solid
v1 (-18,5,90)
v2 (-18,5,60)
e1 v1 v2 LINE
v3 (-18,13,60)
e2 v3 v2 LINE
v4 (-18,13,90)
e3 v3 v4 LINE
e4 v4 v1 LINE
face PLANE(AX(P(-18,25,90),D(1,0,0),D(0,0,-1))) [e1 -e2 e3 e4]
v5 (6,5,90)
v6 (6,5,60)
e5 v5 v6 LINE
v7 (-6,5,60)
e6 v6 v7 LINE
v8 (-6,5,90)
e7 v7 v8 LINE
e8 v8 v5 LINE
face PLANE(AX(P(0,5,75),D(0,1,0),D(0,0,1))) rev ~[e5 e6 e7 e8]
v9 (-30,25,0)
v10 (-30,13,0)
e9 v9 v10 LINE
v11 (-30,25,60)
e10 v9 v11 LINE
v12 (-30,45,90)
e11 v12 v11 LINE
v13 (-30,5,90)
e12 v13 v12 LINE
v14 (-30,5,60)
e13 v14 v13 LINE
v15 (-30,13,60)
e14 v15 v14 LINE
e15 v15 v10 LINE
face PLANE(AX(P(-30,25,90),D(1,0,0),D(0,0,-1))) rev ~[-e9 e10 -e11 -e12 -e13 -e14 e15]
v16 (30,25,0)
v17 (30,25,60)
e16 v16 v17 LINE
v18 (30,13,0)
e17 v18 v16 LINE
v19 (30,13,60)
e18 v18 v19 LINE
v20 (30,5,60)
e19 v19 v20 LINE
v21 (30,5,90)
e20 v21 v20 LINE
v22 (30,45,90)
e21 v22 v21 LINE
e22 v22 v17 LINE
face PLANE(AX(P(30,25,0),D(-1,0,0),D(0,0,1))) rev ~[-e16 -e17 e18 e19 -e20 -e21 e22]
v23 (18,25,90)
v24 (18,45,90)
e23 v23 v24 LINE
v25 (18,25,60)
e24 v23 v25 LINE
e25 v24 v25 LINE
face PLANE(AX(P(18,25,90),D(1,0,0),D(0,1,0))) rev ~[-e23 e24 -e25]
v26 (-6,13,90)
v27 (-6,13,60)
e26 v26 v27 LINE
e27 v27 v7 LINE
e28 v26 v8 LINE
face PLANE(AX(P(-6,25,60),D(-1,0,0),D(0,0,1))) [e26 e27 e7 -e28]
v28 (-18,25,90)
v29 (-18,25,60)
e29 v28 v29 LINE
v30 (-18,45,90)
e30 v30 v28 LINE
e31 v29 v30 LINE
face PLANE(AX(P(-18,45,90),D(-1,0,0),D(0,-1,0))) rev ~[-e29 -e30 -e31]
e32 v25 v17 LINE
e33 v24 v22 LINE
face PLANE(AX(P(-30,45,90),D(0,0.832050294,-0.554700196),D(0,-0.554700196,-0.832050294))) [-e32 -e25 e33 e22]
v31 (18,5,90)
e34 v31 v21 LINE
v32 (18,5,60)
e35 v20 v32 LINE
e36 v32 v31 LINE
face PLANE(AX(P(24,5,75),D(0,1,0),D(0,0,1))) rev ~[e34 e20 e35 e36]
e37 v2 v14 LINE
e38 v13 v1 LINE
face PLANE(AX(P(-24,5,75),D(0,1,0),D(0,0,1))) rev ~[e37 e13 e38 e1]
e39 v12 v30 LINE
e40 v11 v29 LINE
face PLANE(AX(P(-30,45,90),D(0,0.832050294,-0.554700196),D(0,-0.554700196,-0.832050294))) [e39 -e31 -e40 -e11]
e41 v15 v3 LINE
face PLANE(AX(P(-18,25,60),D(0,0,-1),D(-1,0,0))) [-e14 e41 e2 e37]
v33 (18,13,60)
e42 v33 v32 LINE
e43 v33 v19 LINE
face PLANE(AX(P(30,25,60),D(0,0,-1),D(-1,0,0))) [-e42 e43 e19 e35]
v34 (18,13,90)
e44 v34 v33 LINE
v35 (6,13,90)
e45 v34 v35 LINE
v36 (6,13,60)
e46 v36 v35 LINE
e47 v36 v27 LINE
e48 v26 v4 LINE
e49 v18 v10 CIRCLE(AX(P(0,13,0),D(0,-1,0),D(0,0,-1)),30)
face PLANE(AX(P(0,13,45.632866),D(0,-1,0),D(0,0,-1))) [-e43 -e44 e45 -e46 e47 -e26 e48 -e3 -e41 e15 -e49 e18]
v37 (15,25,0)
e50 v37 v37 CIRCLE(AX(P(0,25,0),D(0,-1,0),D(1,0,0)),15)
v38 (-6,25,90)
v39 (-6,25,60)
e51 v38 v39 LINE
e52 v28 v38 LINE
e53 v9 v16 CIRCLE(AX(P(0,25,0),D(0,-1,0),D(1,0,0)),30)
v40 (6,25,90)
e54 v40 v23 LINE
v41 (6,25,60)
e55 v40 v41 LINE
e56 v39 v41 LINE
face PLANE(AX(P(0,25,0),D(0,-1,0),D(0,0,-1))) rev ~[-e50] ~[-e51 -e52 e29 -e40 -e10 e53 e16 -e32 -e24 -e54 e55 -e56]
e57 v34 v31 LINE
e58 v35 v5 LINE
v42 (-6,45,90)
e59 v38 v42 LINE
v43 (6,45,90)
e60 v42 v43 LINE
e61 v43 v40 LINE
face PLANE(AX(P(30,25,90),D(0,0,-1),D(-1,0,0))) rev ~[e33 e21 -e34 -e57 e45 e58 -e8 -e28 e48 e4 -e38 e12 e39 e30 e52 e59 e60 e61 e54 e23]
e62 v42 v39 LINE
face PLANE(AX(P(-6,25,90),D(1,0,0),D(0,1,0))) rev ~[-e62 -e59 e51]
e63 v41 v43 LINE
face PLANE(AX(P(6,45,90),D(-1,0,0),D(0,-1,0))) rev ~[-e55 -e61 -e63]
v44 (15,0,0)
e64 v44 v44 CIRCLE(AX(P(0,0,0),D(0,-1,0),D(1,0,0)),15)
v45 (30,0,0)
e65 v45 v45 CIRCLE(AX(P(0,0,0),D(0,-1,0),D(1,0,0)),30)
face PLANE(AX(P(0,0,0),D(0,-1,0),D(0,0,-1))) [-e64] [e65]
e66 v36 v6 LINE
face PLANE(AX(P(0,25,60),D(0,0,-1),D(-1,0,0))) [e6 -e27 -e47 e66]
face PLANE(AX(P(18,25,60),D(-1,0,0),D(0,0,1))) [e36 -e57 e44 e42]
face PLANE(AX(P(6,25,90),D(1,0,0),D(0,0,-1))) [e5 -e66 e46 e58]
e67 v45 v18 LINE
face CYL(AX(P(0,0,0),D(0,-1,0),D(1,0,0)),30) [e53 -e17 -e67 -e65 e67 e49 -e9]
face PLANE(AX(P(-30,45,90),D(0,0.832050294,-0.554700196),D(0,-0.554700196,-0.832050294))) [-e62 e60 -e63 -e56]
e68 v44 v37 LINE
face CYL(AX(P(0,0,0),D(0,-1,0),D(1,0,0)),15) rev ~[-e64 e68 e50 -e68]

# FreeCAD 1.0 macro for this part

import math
import FreeCAD as App
import Part
import Sketcher

V = App.Vector


def add_polygon(sketch, points):
    """Adds a closed chain of lines whose ends are joined by coincident constraints."""
    first, n = sketch.GeometryCount, len(points)
    for a, b in zip(points, points[1:] + points[:1]):
        sketch.addGeometry(Part.LineSegment(App.Vector(*a, 0), App.Vector(*b, 0)), False)
    for i in range(n):
        sketch.addConstraint(Sketcher.Constraint("Coincident", first + i, 2, first + (i + 1) % n, 1))

doc = App.newDocument("Part")
body = doc.addObject("PartDesign::Body", "Body")

# Sketch on XZ plane
sketch1 = body.newObject("Sketcher::SketchObject", "Sketch")
sketch1.AttachmentSupport = (doc.getObject("XZ_Plane"), [""])
sketch1.MapMode = "FlatFace"
sketch1.addGeometry(Part.Circle(V(0, 0, 0), V(0, 0, 1), 30), False)
sketch1.addGeometry(Part.Circle(V(0, 0, 0), V(0, 0, 1), 15), False)
sketch1.addConstraint(Sketcher.Constraint("Coincident", 0, 3, -1, 1))
sketch1.addConstraint(Sketcher.Constraint("Coincident", 1, 3, -1, 1))
sketch1.addConstraint(Sketcher.Constraint("Diameter", 0, 60.0))
sketch1.addConstraint(Sketcher.Constraint("Diameter", 1, 30.0))
pad1 = body.newObject("PartDesign::Pad", "Pad")
pad1.Profile = sketch1
pad1.Length = 25
pad1.Reversed = True

# Sketch on XZ plane
sketch2 = body.newObject("Sketcher::SketchObject", "Sketch001")
sketch2.AttachmentSupport = (doc.getObject("XZ_Plane"), [""])
sketch2.MapMode = "FlatFace"
sketch2.AttachmentOffset = App.Placement(V(0, 0, -25), App.Rotation())
sketch2.addGeometry(Part.LineSegment(V(-30, 90, 0), V(30, 90, 0)), False)
sketch2.addGeometry(Part.LineSegment(V(30, 90, 0), V(30, 0, 0)), False)
sketch2.addGeometry(Part.ArcOfCircle(Part.Circle(V(0, 0, 0), V(0, 0, 1), 30), math.radians(0), math.radians(180)), False)
sketch2.addGeometry(Part.LineSegment(V(-30, 0, 0), V(-30, 90, 0)), False)
sketch2.addConstraint(Sketcher.Constraint("Coincident", 0, 2, 1, 1))
sketch2.addConstraint(Sketcher.Constraint("Tangent", 1, 2, 2, 1))
sketch2.addConstraint(Sketcher.Constraint("Tangent", 2, 2, 3, 1))
sketch2.addConstraint(Sketcher.Constraint("Coincident", 3, 2, 0, 1))
sketch2.addConstraint(Sketcher.Constraint("Horizontal", 0))
sketch2.addConstraint(Sketcher.Constraint("Vertical", 1))
sketch2.addConstraint(Sketcher.Constraint("Vertical", 3))
sketch2.addConstraint(Sketcher.Constraint("Coincident", 2, 3, -1, 1))
sketch2.addConstraint(Sketcher.Constraint("Radius", 2, 30.0))
sketch2.addConstraint(Sketcher.Constraint("DistanceY", 1, 2, 1, 1, 90.0))
pad2 = body.newObject("PartDesign::Pad", "Pad001")
pad2.Profile = sketch2
pad2.Length = 12

# Sketch on XZ plane
sketch3 = body.newObject("Sketcher::SketchObject", "Sketch002")
sketch3.AttachmentSupport = (doc.getObject("XZ_Plane"), [""])
sketch3.MapMode = "FlatFace"
sketch3.AttachmentOffset = App.Placement(V(0, 0, -25), App.Rotation())
add_polygon(sketch3, [(30, 60), (18, 60), (18, 90), (30, 90)])  # lines 0-3
add_polygon(sketch3, [(6, 60), (-6, 60), (-6, 90), (6, 90)])  # lines 4-7
add_polygon(sketch3, [(-30, 90), (-18, 90), (-18, 60), (-30, 60)])  # lines 8-11
sketch3.addConstraint(Sketcher.Constraint("Horizontal", 0))
sketch3.addConstraint(Sketcher.Constraint("Vertical", 1))
sketch3.addConstraint(Sketcher.Constraint("Horizontal", 2))
sketch3.addConstraint(Sketcher.Constraint("Vertical", 3))
sketch3.addConstraint(Sketcher.Constraint("Horizontal", 4))
sketch3.addConstraint(Sketcher.Constraint("Vertical", 5))
sketch3.addConstraint(Sketcher.Constraint("Horizontal", 6))
sketch3.addConstraint(Sketcher.Constraint("Vertical", 7))
sketch3.addConstraint(Sketcher.Constraint("Horizontal", 8))
sketch3.addConstraint(Sketcher.Constraint("Vertical", 9))
sketch3.addConstraint(Sketcher.Constraint("Horizontal", 10))
sketch3.addConstraint(Sketcher.Constraint("Vertical", 11))
sketch3.addConstraint(Sketcher.Constraint("Symmetric", 1, 2, 8, 2, -2))
sketch3.addConstraint(Sketcher.Constraint("Symmetric", 3, 2, 10, 2, -2))
sketch3.addConstraint(Sketcher.Constraint("Horizontal", 3, 2, 4, 2))
sketch3.addConstraint(Sketcher.Constraint("Horizontal", 2, 2, 5, 2))
sketch3.addConstraint(Sketcher.Constraint("Equal", 2, 4))
sketch3.addConstraint(Sketcher.Constraint("DistanceX", 0, 2, 0, 1, 12.0))
sketch3.addConstraint(Sketcher.Constraint("DistanceY", 1, 1, 1, 2, 30.0))
sketch3.addConstraint(Sketcher.Constraint("DistanceX", -1, 1, 0, 2, 18.0))
sketch3.addConstraint(Sketcher.Constraint("DistanceY", -1, 1, 0, 2, 60.0))
sketch3.addConstraint(Sketcher.Constraint("DistanceX", 4, 2, -1, 1, 6.0))
pad3 = body.newObject("PartDesign::Pad", "Pad002")
pad3.Profile = sketch3
pad3.Length = 20

# Sketch on YZ plane
sketch4 = body.newObject("Sketcher::SketchObject", "Sketch003")
sketch4.AttachmentSupport = (doc.getObject("YZ_Plane"), [""])
sketch4.MapMode = "FlatFace"
sketch4.AttachmentOffset = App.Placement(V(0, 0, -30), App.Rotation())
add_polygon(sketch4, [(25, 90), (45, 90), (25, 60)])  # lines 0-2
sketch4.addConstraint(Sketcher.Constraint("Horizontal", 0))
sketch4.addConstraint(Sketcher.Constraint("Vertical", 2))
sketch4.addConstraint(Sketcher.Constraint("DistanceX", 0, 1, 0, 2, 20.0))
sketch4.addConstraint(Sketcher.Constraint("DistanceY", 2, 1, 2, 2, 30.0))
sketch4.addConstraint(Sketcher.Constraint("DistanceX", -1, 1, 0, 2, 45.0))
sketch4.addConstraint(Sketcher.Constraint("DistanceY", -1, 1, 0, 2, 90.0))
pad4 = body.newObject("PartDesign::Pad", "Pad003")
pad4.Profile = sketch4
pad4.Length = 60

# Sketch on XY plane
sketch5 = body.newObject("Sketcher::SketchObject", "Sketch004")
sketch5.AttachmentSupport = (doc.getObject("XY_Plane"), [""])
sketch5.MapMode = "FlatFace"
sketch5.AttachmentOffset = App.Placement(V(0, 0, 90), App.Rotation())
add_polygon(sketch5, [(6, 25), (18, 25), (18, 45), (6, 45)])  # lines 0-3
sketch5.addConstraint(Sketcher.Constraint("Horizontal", 0))
sketch5.addConstraint(Sketcher.Constraint("Vertical", 1))
sketch5.addConstraint(Sketcher.Constraint("Horizontal", 2))
sketch5.addConstraint(Sketcher.Constraint("Vertical", 3))
sketch5.addConstraint(Sketcher.Constraint("DistanceX", 0, 1, 0, 2, 12.0))
sketch5.addConstraint(Sketcher.Constraint("DistanceY", 1, 1, 1, 2, 20.0))
sketch5.addConstraint(Sketcher.Constraint("DistanceX", -1, 1, 0, 2, 18.0))
sketch5.addConstraint(Sketcher.Constraint("DistanceY", -1, 1, 0, 2, 25.0))
pocket1 = body.newObject("PartDesign::Pocket", "Pocket")
pocket1.Profile = sketch5
pocket1.Length = 32

# Sketch on XY plane
sketch6 = body.newObject("Sketcher::SketchObject", "Sketch005")
sketch6.AttachmentSupport = (doc.getObject("XY_Plane"), [""])
sketch6.MapMode = "FlatFace"
sketch6.AttachmentOffset = App.Placement(V(0, 0, 90), App.Rotation())
add_polygon(sketch6, [(-18, 25), (-6, 25), (-6, 45), (-18, 45)])  # lines 0-3
sketch6.addConstraint(Sketcher.Constraint("Horizontal", 0))
sketch6.addConstraint(Sketcher.Constraint("Vertical", 1))
sketch6.addConstraint(Sketcher.Constraint("Horizontal", 2))
sketch6.addConstraint(Sketcher.Constraint("Vertical", 3))
sketch6.addConstraint(Sketcher.Constraint("DistanceX", 0, 1, 0, 2, 12.0))
sketch6.addConstraint(Sketcher.Constraint("DistanceY", 1, 1, 1, 2, 20.0))
sketch6.addConstraint(Sketcher.Constraint("DistanceX", 0, 2, -1, 1, 6.0))
sketch6.addConstraint(Sketcher.Constraint("DistanceY", -1, 1, 0, 2, 25.0))
pocket2 = body.newObject("PartDesign::Pocket", "Pocket001")
pocket2.Profile = sketch6
pocket2.Length = 32

doc.recompute()
